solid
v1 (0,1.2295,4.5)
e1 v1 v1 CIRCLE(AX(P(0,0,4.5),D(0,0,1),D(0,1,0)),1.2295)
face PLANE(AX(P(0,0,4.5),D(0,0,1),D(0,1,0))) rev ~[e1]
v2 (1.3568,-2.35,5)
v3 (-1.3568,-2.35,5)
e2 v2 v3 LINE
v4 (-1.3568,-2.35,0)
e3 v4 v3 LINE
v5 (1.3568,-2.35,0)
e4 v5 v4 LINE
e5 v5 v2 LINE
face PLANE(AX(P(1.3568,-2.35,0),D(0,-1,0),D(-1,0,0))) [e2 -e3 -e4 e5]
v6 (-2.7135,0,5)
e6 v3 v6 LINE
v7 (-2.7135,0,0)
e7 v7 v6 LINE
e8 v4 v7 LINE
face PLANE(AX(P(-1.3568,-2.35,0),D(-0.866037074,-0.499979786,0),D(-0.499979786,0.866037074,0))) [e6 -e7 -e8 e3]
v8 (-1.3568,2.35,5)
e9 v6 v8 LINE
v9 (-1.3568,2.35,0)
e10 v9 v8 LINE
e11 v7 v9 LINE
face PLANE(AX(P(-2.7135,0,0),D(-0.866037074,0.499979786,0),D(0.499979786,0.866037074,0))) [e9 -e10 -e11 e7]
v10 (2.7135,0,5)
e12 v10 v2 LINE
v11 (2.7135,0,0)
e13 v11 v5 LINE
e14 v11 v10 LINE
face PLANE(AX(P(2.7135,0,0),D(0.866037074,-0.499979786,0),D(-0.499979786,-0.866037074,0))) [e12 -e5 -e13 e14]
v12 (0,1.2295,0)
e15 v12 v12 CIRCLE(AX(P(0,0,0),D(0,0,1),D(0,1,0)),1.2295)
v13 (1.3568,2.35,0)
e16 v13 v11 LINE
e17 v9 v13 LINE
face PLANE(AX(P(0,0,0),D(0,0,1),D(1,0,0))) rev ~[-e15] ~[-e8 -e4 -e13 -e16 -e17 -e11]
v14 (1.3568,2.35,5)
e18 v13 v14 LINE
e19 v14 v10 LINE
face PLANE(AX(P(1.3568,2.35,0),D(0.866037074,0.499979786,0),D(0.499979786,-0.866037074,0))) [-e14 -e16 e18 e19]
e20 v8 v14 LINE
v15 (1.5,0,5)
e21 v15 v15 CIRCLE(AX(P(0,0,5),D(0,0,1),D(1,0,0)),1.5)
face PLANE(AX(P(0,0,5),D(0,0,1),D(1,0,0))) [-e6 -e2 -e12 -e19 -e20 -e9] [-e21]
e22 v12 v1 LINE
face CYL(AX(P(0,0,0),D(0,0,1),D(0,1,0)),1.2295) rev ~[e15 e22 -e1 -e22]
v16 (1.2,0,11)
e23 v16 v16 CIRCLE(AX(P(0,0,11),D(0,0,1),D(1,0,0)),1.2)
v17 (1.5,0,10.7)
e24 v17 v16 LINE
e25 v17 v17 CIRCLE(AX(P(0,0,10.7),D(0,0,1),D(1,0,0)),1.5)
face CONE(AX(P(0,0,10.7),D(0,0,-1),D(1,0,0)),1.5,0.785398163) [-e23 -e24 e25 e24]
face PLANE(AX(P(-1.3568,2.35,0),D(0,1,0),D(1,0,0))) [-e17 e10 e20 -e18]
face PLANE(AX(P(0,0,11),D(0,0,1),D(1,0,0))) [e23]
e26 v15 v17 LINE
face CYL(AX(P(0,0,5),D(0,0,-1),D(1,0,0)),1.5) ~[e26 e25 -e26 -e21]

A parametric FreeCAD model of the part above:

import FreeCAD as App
import Part
import Sketcher
from FreeCAD import Vector


def edges_at(feature, points):
    """Names of the edges that pass closest to the given points."""
    edges = feature.Shape.Edges
    near = lambda p: min(range(len(edges)), key=lambda i: edges[i].distToShape(Part.Vertex(*p))[0])
    return sorted({f"Edge{near(p) + 1}" for p in points})

doc = App.newDocument("Part")
body = doc.addObject("PartDesign::Body", "Body")

sketch1 = body.newObject("Sketcher::SketchObject", "Sketch")
sketch1.AttachmentSupport = (doc.getObject("XY_Plane"), [""])
sketch1.MapMode = "FlatFace"
sketch1.addGeometry([
    Part.LineSegment(Vector(1.4, -2.4, 0), Vector(2.7, 0, 0)),
    Part.LineSegment(Vector(2.7, 0, 0), Vector(1.4, 2.4, 0)),
    Part.LineSegment(Vector(1.4, 2.4, 0), Vector(-1.4, 2.4, 0)),
    Part.LineSegment(Vector(-1.4, 2.4, 0), Vector(-2.7, 0, 0)),
    Part.LineSegment(Vector(-2.7, 0, 0), Vector(-1.4, -2.4, 0)),
    Part.LineSegment(Vector(-1.4, -2.4, 0), Vector(1.4, -2.4, 0)),
], False)
sketch1.addConstraint([
    Sketcher.Constraint("Coincident", 0, 2, 1, 1),
    Sketcher.Constraint("Coincident", 1, 2, 2, 1),
    Sketcher.Constraint("Coincident", 2, 2, 3, 1),
    Sketcher.Constraint("Coincident", 3, 2, 4, 1),
    Sketcher.Constraint("Coincident", 4, 2, 5, 1),
    Sketcher.Constraint("Coincident", 5, 2, 0, 1),
    Sketcher.Constraint("Horizontal", 2),
    Sketcher.Constraint("Horizontal", 5),
    Sketcher.Constraint("Symmetric", 0, 2, 3, 2, -1, 1),
    Sketcher.Constraint("Symmetric", 1, 2, 4, 2, -1, 1),
    Sketcher.Constraint("PointOnObject", 0, 2, -1),
    Sketcher.Constraint("Parallel", 0, 3),
    Sketcher.Constraint("Vertical", 2, 2, 4, 2),
    Sketcher.Constraint("DistanceY", 4, 2, 2, 2, 4.7),
    Sketcher.Constraint("DistanceX", 2, 2, 2, 1, 2.7136),
    Sketcher.Constraint("DistanceX", 3, 2, 0, 2, 5.427),
])
pad1 = body.newObject("PartDesign::Pad", "Pad")
pad1.Profile = sketch1
pad1.Length = 5

sketch2 = body.newObject("Sketcher::SketchObject", "Sketch001")
sketch2.AttachmentSupport = (doc.getObject("XY_Plane"), [""])
sketch2.MapMode = "FlatFace"
sketch2.AttachmentOffset = App.Placement(Vector(0, 0, 5), App.Rotation())
sketch2.addGeometry(Part.Circle(Vector(0, 0, 0), Vector(0, 0, 1), 1.5), False)
sketch2.addConstraint([
    Sketcher.Constraint("Coincident", 0, 3, -1, 1),
    Sketcher.Constraint("Diameter", 0, 3.0),
])
pad2 = body.newObject("PartDesign::Pad", "Pad001")
pad2.Profile = sketch2
pad2.Length = 6
doc.recompute()

chamfer = body.newObject("PartDesign::Chamfer", "Chamfer")
chamfer.Base = (pad2, edges_at(pad2, [(-1.5, 0, 11)]))
chamfer.Size = 0.3

sketch3 = body.newObject("Sketcher::SketchObject", "Sketch002")
sketch3.AttachmentSupport = (doc.getObject("XY_Plane"), [""])
sketch3.MapMode = "FlatFace"
sketch3.addGeometry(Part.Circle(Vector(0, 0, 0), Vector(0, 0, 1), 1.2), False)
sketch3.addConstraint([
    Sketcher.Constraint("Coincident", 0, 3, -1, 1),
    Sketcher.Constraint("Diameter", 0, 2.459),
])
doc.recompute()
hole = body.newObject("PartDesign::Hole", "Hole")
hole.Profile = sketch3
hole.ThreadType = "None"
hole.Diameter = 2.459
hole.DepthType = "Dimension"
hole.Depth = 4.5
hole.DrillPoint = "Flat"
hole.Reversed = True

doc.recompute()
